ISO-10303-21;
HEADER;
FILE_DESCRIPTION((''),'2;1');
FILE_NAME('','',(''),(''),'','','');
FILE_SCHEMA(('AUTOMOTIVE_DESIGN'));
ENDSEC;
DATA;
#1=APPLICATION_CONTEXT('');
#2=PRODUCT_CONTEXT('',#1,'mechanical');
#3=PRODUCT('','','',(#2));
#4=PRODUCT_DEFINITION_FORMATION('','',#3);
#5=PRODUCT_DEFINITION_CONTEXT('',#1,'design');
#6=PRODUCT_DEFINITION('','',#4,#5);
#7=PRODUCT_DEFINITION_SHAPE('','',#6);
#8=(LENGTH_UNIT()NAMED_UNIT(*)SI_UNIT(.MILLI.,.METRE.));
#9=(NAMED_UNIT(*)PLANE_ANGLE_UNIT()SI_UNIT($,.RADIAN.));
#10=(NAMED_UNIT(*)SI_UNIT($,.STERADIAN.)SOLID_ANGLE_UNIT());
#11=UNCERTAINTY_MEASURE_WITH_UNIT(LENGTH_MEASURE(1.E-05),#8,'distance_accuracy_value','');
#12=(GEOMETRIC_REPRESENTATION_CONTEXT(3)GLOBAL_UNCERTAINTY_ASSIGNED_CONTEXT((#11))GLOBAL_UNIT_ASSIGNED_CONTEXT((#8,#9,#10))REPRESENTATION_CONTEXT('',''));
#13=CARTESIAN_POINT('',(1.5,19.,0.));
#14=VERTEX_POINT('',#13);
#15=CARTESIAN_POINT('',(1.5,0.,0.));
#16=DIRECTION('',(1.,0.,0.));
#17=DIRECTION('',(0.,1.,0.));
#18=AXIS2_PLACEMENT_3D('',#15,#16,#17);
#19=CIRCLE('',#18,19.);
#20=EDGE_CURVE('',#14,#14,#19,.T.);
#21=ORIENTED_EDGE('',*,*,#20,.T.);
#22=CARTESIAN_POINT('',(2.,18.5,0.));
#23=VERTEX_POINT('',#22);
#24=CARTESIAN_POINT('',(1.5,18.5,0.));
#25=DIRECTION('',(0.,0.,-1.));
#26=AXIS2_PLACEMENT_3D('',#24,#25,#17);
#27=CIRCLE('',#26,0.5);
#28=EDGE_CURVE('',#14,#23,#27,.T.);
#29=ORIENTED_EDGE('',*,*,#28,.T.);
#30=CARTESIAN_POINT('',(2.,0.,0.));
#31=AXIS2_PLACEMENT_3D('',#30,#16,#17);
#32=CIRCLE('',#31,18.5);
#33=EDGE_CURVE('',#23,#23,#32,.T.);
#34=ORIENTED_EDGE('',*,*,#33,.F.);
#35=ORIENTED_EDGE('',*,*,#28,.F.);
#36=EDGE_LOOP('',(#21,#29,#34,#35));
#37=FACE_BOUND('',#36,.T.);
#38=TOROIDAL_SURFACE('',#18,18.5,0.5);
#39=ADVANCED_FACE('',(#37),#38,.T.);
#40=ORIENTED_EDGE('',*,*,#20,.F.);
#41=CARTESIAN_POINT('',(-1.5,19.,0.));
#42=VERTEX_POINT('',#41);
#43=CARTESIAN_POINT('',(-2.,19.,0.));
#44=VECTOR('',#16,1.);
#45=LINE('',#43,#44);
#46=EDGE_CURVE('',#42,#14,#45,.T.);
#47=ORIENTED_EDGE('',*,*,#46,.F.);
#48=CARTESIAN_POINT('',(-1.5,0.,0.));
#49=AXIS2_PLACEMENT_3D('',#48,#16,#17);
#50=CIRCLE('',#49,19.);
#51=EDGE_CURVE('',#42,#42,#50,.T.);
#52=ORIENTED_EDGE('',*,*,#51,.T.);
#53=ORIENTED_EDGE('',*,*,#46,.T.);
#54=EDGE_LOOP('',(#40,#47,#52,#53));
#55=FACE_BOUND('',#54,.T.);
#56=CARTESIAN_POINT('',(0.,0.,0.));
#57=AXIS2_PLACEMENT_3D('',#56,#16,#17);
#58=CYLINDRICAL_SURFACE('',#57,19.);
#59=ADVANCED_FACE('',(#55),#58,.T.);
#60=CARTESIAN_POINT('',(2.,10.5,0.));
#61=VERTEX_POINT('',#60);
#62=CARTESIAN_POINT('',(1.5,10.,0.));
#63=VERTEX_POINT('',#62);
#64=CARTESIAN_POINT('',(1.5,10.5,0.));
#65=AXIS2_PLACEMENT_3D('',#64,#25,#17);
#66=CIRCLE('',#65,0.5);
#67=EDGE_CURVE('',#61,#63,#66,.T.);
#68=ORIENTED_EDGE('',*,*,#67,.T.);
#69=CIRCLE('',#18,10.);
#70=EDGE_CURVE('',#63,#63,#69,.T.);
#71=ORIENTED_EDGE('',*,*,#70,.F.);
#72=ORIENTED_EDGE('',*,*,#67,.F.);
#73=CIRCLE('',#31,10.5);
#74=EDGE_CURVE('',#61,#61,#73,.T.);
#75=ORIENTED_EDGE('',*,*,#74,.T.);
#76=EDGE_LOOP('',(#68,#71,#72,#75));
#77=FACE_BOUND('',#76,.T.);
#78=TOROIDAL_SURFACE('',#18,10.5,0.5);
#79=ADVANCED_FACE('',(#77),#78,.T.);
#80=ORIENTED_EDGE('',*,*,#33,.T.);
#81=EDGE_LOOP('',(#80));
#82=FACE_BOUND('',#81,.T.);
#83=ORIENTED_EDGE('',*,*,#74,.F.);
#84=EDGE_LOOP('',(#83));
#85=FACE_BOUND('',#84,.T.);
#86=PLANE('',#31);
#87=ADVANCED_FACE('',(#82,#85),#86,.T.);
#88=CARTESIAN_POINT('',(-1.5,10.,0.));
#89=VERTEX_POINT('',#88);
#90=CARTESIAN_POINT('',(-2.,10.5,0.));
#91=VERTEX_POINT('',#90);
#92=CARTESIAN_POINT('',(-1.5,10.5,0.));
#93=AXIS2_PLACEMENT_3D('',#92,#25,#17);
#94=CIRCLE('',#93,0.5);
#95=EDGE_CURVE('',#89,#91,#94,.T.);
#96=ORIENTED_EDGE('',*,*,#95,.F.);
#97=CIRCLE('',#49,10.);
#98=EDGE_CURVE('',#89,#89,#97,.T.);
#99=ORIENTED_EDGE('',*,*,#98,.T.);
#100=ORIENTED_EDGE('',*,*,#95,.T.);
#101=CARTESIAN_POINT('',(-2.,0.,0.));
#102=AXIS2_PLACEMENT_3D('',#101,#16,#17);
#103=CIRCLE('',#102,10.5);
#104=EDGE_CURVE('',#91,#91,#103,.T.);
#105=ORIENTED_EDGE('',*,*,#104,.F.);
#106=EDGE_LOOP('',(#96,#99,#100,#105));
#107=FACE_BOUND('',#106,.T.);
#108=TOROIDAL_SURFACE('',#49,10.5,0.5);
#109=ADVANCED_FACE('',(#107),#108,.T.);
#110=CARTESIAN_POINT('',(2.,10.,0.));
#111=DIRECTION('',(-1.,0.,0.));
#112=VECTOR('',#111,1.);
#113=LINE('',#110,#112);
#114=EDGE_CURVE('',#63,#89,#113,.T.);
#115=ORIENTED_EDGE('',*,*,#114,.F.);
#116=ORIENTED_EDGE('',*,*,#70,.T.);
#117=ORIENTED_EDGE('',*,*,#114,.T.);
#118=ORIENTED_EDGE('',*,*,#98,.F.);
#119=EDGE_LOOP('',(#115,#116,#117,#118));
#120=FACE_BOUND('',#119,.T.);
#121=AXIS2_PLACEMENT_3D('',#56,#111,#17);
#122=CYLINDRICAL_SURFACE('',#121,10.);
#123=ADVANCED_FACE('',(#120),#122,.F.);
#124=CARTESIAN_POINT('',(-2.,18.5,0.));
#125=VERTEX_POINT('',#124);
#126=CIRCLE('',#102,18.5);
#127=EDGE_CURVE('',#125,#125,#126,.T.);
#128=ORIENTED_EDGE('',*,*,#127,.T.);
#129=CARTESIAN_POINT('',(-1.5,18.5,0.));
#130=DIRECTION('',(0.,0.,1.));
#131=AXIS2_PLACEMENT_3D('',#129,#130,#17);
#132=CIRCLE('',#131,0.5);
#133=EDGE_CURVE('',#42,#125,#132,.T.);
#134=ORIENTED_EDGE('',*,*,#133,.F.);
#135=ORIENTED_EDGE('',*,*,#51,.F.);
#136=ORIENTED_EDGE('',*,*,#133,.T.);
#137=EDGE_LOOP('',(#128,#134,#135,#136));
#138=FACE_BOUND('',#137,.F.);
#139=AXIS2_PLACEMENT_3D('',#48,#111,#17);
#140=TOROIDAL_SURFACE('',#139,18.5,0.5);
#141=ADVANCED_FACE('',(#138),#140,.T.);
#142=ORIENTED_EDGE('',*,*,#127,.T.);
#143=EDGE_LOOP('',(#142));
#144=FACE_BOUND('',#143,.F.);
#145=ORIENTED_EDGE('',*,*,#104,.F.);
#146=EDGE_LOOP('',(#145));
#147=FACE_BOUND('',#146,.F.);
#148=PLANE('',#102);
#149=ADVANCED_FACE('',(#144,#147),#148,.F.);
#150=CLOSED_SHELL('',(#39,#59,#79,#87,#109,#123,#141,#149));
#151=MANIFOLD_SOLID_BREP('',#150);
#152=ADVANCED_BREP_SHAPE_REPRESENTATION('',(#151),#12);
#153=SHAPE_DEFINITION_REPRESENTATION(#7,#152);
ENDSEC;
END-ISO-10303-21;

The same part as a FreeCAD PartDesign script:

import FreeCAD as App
import Part
import Sketcher


def edges_at(feature, points):
    """Names of the edges that pass closest to the given points."""
    edges = feature.Shape.Edges
    near = lambda p: min(range(len(edges)), key=lambda i: edges[i].distToShape(Part.Vertex(*p))[0])
    return sorted({f"Edge{near(p) + 1}" for p in points})

doc = App.newDocument("Part")
params = doc.addObject("Spreadsheet::Sheet", "Params")
for row, (alias, value) in enumerate([
    ("sketch1_diameter", "38 mm"),
    ("sketch1_diameter2", "20 mm"),
    ("pad1_length", "4 mm"),
    ("fillet_radius", "0.5 mm"),
], start=1):
    params.set(f"A{row}", alias)
    params.set(f"B{row}", "=" + value)
    params.setAlias(f"B{row}", alias)

body = doc.addObject("PartDesign::Body", "Body")

# Sketch on YZ plane
sketch1 = doc.addObject("Sketcher::SketchObject", "Sketch")
body.addObject(sketch1)
sketch1.AttachmentSupport = (doc.YZ_Plane, [""])
sketch1.MapMode = "FlatFace"
sketch1.addGeometry([
    Part.Circle(App.Vector(0, 0, 0), App.Vector(0, 0, 1), 19),
    Part.Circle(App.Vector(0, 0, 0), App.Vector(0, 0, 1), 10),
], False)
sketch1.addConstraint([
    Sketcher.Constraint("Coincident", 0, 3, -1, 1),
    Sketcher.Constraint("Coincident", 1, 3, -1, 1),
    Sketcher.Constraint("Diameter", 0, 38.0),
    Sketcher.Constraint("Diameter", 1, 20.0),
])
sketch1.setExpression("Constraints[2]", "Params.sketch1_diameter")
sketch1.setExpression("Constraints[3]", "Params.sketch1_diameter2")
pad1 = doc.addObject("PartDesign::Pad", "Pad")
body.addObject(pad1)
pad1.Profile = sketch1
pad1.setExpression("Length", "Params.pad1_length")
pad1.Midplane = True
doc.recompute()

fillet = doc.addObject("PartDesign::Fillet", "Fillet")
body.addObject(fillet)
fillet.Base = (pad1, edges_at(pad1, [
    (2, -10, 0),
    (-2, -10, 0),
    (2, -19, 0),
    (-2, -19, 0),
]))
fillet.setExpression("Radius", "Params.fillet_radius")

doc.recompute()
